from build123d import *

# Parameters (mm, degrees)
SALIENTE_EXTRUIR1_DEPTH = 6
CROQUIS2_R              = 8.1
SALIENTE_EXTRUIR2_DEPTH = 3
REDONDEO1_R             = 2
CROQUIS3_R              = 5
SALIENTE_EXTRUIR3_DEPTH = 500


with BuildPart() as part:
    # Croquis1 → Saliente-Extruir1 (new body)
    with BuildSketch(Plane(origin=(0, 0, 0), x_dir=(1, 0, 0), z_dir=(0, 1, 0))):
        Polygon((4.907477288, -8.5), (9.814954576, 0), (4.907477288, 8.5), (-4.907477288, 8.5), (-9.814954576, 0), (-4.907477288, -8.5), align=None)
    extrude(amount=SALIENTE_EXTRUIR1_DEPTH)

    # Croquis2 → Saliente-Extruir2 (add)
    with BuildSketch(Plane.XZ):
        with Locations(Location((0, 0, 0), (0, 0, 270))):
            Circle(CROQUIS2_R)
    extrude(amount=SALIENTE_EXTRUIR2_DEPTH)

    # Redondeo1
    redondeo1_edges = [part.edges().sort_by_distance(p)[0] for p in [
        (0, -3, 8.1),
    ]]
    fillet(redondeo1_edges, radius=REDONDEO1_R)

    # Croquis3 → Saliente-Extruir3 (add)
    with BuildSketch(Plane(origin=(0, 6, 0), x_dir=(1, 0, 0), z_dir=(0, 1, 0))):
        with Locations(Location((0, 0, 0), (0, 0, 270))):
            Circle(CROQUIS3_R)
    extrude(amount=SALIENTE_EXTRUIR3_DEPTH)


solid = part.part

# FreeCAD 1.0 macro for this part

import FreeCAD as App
import Part
import Sketcher
Q = App.Units.Quantity


def edges_at(feature, points):
    """Names of the edges that pass closest to the given points."""
    edges = feature.Shape.Edges
    near = lambda p: min(range(len(edges)), key=lambda i: edges[i].distToShape(Part.Vertex(*p))[0])
    return sorted({f"Edge{near(p) + 1}" for p in points})


def add_polygon(sketch, points):
    """Adds a closed chain of lines whose ends are joined by coincident constraints."""
    first, n = sketch.GeometryCount, len(points)
    for a, b in zip(points, points[1:] + points[:1]):
        sketch.addGeometry(Part.LineSegment(App.Vector(*a, 0), App.Vector(*b, 0)), False)
    for i in range(n):
        sketch.addConstraint(Sketcher.Constraint("Coincident", first + i, 2, first + (i + 1) % n, 1))

doc = App.newDocument("Part")
body = doc.addObject("PartDesign::Body", "Body")

# Sketch on XZ plane
sketch1 = body.newObject("Sketcher::SketchObject", "Sketch")
sketch1.AttachmentSupport = (doc.getObject("XZ_Plane"), [""])
sketch1.MapMode = "FlatFace"
add_polygon(sketch1, [(4.907477, 8.5), (9.814955, 0), (4.907477, -8.5), (-4.907477, -8.5), (-9.814955, 0), (-4.907477, 8.5)])  # lines 0-5
sketch1.addConstraint(Sketcher.Constraint("Horizontal", 2))
sketch1.addConstraint(Sketcher.Constraint("Horizontal", 5))
sketch1.addConstraint(Sketcher.Constraint("Symmetric", 0, 2, 3, 2, -1, 1))
sketch1.addConstraint(Sketcher.Constraint("Symmetric", 1, 2, 4, 2, -1, 1))
sketch1.addConstraint(Sketcher.Constraint("PointOnObject", 0, 2, -1))
sketch1.addConstraint(Sketcher.Constraint("Parallel", 0, 3))
sketch1.addConstraint(Sketcher.Constraint("Vertical", 2, 2, 4, 2))
sketch1.addConstraint(Sketcher.Constraint("Angle", 0, Q("-60 deg")))
sketch1.addConstraint(Sketcher.Constraint("DistanceY", 2, 2, 4, 2, Q("17 mm")))
sketch1.addConstraint(Sketcher.Constraint("DistanceX", 2, 2, 2, 1, Q("9.814955 mm")))
pad1 = body.newObject("PartDesign::Pad", "Pad")
pad1.Profile = sketch1
pad1.Length = 6
pad1.Reversed = True

# Sketch on XZ plane
sketch2 = body.newObject("Sketcher::SketchObject", "Sketch001")
sketch2.AttachmentSupport = (doc.getObject("XZ_Plane"), [""])
sketch2.MapMode = "FlatFace"
sketch2.addGeometry(Part.Circle(App.Vector(0, 0, 0), App.Vector(0, 0, 1), 8.1), False)
sketch2.addConstraint(Sketcher.Constraint("Coincident", 0, 3, -1, 1))
sketch2.addConstraint(Sketcher.Constraint("Diameter", 0, Q("16.2 mm")))
pad2 = body.newObject("PartDesign::Pad", "Pad001")
pad2.Profile = sketch2
pad2.Length = 3
doc.recompute()

fillet = body.newObject("PartDesign::Fillet", "Fillet")
fillet.Base = (pad2, edges_at(pad2, [(0, -3, 8.1)]))
fillet.Radius = 2

# Sketch on XZ plane
sketch3 = body.newObject("Sketcher::SketchObject", "Sketch002")
sketch3.AttachmentSupport = (doc.getObject("XZ_Plane"), [""])
sketch3.MapMode = "FlatFace"
sketch3.AttachmentOffset = App.Placement(App.Vector(0, 0, -6), App.Rotation())
sketch3.addGeometry(Part.Circle(App.Vector(0, 0, 0), App.Vector(0, 0, 1), 5), False)
sketch3.addConstraint(Sketcher.Constraint("Coincident", 0, 3, -1, 1))
sketch3.addConstraint(Sketcher.Constraint("Diameter", 0, Q("10 mm")))
pad3 = body.newObject("PartDesign::Pad", "Pad002")
pad3.Profile = sketch3
pad3.Length = 500
pad3.Reversed = True

doc.recompute()
